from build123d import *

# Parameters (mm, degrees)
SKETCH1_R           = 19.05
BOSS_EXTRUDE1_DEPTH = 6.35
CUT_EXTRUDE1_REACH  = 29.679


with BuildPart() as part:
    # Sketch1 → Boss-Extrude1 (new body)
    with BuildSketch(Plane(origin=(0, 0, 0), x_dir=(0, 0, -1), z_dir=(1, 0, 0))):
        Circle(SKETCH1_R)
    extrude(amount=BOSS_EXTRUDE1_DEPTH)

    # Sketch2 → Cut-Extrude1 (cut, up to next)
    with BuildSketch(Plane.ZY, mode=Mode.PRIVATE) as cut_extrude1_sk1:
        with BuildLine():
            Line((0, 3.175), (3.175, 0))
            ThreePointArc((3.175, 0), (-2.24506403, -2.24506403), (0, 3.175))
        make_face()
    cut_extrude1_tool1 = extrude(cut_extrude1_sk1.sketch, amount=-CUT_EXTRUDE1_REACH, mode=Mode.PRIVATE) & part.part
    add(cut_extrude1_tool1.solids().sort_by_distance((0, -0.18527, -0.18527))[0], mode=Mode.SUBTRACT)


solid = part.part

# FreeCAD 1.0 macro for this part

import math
import FreeCAD as App
import Part
import Sketcher
Q = App.Units.Quantity

doc = App.newDocument("Part")
body = doc.addObject("PartDesign::Body", "Body")

# Sketch on YZ plane
sketch1 = body.newObject("Sketcher::SketchObject", "Sketch")
sketch1.AttachmentSupport = (doc.getObject("YZ_Plane"), [""])
sketch1.MapMode = "FlatFace"
sketch1.addGeometry(Part.Circle(App.Vector(0, 0, 0), App.Vector(0, 0, 1), 19.05), False)
sketch1.addConstraint(Sketcher.Constraint("Coincident", 0, 3, -1, 1))
sketch1.addConstraint(Sketcher.Constraint("Diameter", 0, Q("1.5 in")))
pad1 = body.newObject("PartDesign::Pad", "Pad")
pad1.Profile = sketch1
pad1.Length = Q("0.25 in")

# Sketch on YZ plane
sketch2 = body.newObject("Sketcher::SketchObject", "Sketch001")
sketch2.AttachmentSupport = (doc.getObject("YZ_Plane"), [""])
sketch2.MapMode = "FlatFace"
sketch2.addGeometry(Part.LineSegment(App.Vector(0, 3.175, 0), App.Vector(3.175, 0, 0)), False)
sketch2.addGeometry(Part.ArcOfCircle(Part.Circle(App.Vector(0, 0, 0), App.Vector(0, 0, 1), 3.175), math.radians(90), math.radians(360)), False)
sketch2.addConstraint(Sketcher.Constraint("Coincident", 0, 1, 1, 1))
sketch2.addConstraint(Sketcher.Constraint("Coincident", 1, 2, 0, 2))
sketch2.addConstraint(Sketcher.Constraint("Coincident", 1, 3, -1, 1))
sketch2.addConstraint(Sketcher.Constraint("PointOnObject", 0, 1, -2))
sketch2.addConstraint(Sketcher.Constraint("PointOnObject", 1, 2, -1))
sketch2.addConstraint(Sketcher.Constraint("Radius", 1, Q("0.125 in")))
pocket1 = body.newObject("PartDesign::Pocket", "Pocket")
pocket1.Profile = sketch2
pocket1.Type = "UpToFirst"
pocket1.Reversed = True

doc.recompute()
